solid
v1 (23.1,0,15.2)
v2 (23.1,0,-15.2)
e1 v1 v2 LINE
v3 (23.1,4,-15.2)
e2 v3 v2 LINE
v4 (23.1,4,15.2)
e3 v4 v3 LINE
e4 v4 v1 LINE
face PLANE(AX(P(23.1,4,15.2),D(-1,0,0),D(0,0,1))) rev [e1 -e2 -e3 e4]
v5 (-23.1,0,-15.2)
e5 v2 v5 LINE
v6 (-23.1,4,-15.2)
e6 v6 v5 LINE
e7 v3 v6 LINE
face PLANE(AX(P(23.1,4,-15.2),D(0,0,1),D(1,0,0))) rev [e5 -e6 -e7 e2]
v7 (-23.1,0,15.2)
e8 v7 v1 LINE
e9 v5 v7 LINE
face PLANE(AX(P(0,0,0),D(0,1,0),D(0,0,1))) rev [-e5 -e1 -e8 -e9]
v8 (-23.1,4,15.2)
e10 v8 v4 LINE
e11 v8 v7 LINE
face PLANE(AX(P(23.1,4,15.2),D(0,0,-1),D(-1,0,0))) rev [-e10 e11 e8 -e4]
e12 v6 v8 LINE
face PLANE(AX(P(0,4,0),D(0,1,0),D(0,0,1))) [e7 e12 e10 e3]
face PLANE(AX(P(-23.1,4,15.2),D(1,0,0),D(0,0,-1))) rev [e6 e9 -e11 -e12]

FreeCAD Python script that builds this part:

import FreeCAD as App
import Part
import Sketcher
Q = App.Units.Quantity

doc = App.newDocument("Part")
body = doc.addObject("PartDesign::Body", "Body")

sketch1 = doc.addObject("Sketcher::SketchObject", "Sketch")
body.addObject(sketch1)
sketch1.AttachmentSupport = (doc.XZ_Plane, [""])
sketch1.MapMode = "FlatFace"
sketch1.addGeometry([
    Part.LineSegment(App.Vector(-23, -15, 0), App.Vector(-23, 15, 0)),
    Part.LineSegment(App.Vector(-23, 15, 0), App.Vector(23, 15, 0)),
    Part.LineSegment(App.Vector(23, 15, 0), App.Vector(23, -15, 0)),
    Part.LineSegment(App.Vector(23, -15, 0), App.Vector(-23, -15, 0)),
], False)
sketch1.addConstraint([
    Sketcher.Constraint("Coincident", 0, 2, 1, 1),
    Sketcher.Constraint("Coincident", 1, 2, 2, 1),
    Sketcher.Constraint("Coincident", 2, 2, 3, 1),
    Sketcher.Constraint("Coincident", 3, 2, 0, 1),
    Sketcher.Constraint("Vertical", 0),
    Sketcher.Constraint("Horizontal", 1),
    Sketcher.Constraint("Vertical", 2),
    Sketcher.Constraint("Horizontal", 3),
    Sketcher.Constraint("Symmetric", 0, 2, 2, 2, -1, 1),
    Sketcher.Constraint("DistanceX", 1, 1, 1, 2, Q("46.2 mm")),
    Sketcher.Constraint("DistanceY", 0, 1, 0, 2, Q("30.4 mm")),
])
pad1 = doc.addObject("PartDesign::Pad", "Pad")
body.addObject(pad1)
pad1.Profile = sketch1
pad1.Length = 4
pad1.Reversed = True

doc.recompute()
